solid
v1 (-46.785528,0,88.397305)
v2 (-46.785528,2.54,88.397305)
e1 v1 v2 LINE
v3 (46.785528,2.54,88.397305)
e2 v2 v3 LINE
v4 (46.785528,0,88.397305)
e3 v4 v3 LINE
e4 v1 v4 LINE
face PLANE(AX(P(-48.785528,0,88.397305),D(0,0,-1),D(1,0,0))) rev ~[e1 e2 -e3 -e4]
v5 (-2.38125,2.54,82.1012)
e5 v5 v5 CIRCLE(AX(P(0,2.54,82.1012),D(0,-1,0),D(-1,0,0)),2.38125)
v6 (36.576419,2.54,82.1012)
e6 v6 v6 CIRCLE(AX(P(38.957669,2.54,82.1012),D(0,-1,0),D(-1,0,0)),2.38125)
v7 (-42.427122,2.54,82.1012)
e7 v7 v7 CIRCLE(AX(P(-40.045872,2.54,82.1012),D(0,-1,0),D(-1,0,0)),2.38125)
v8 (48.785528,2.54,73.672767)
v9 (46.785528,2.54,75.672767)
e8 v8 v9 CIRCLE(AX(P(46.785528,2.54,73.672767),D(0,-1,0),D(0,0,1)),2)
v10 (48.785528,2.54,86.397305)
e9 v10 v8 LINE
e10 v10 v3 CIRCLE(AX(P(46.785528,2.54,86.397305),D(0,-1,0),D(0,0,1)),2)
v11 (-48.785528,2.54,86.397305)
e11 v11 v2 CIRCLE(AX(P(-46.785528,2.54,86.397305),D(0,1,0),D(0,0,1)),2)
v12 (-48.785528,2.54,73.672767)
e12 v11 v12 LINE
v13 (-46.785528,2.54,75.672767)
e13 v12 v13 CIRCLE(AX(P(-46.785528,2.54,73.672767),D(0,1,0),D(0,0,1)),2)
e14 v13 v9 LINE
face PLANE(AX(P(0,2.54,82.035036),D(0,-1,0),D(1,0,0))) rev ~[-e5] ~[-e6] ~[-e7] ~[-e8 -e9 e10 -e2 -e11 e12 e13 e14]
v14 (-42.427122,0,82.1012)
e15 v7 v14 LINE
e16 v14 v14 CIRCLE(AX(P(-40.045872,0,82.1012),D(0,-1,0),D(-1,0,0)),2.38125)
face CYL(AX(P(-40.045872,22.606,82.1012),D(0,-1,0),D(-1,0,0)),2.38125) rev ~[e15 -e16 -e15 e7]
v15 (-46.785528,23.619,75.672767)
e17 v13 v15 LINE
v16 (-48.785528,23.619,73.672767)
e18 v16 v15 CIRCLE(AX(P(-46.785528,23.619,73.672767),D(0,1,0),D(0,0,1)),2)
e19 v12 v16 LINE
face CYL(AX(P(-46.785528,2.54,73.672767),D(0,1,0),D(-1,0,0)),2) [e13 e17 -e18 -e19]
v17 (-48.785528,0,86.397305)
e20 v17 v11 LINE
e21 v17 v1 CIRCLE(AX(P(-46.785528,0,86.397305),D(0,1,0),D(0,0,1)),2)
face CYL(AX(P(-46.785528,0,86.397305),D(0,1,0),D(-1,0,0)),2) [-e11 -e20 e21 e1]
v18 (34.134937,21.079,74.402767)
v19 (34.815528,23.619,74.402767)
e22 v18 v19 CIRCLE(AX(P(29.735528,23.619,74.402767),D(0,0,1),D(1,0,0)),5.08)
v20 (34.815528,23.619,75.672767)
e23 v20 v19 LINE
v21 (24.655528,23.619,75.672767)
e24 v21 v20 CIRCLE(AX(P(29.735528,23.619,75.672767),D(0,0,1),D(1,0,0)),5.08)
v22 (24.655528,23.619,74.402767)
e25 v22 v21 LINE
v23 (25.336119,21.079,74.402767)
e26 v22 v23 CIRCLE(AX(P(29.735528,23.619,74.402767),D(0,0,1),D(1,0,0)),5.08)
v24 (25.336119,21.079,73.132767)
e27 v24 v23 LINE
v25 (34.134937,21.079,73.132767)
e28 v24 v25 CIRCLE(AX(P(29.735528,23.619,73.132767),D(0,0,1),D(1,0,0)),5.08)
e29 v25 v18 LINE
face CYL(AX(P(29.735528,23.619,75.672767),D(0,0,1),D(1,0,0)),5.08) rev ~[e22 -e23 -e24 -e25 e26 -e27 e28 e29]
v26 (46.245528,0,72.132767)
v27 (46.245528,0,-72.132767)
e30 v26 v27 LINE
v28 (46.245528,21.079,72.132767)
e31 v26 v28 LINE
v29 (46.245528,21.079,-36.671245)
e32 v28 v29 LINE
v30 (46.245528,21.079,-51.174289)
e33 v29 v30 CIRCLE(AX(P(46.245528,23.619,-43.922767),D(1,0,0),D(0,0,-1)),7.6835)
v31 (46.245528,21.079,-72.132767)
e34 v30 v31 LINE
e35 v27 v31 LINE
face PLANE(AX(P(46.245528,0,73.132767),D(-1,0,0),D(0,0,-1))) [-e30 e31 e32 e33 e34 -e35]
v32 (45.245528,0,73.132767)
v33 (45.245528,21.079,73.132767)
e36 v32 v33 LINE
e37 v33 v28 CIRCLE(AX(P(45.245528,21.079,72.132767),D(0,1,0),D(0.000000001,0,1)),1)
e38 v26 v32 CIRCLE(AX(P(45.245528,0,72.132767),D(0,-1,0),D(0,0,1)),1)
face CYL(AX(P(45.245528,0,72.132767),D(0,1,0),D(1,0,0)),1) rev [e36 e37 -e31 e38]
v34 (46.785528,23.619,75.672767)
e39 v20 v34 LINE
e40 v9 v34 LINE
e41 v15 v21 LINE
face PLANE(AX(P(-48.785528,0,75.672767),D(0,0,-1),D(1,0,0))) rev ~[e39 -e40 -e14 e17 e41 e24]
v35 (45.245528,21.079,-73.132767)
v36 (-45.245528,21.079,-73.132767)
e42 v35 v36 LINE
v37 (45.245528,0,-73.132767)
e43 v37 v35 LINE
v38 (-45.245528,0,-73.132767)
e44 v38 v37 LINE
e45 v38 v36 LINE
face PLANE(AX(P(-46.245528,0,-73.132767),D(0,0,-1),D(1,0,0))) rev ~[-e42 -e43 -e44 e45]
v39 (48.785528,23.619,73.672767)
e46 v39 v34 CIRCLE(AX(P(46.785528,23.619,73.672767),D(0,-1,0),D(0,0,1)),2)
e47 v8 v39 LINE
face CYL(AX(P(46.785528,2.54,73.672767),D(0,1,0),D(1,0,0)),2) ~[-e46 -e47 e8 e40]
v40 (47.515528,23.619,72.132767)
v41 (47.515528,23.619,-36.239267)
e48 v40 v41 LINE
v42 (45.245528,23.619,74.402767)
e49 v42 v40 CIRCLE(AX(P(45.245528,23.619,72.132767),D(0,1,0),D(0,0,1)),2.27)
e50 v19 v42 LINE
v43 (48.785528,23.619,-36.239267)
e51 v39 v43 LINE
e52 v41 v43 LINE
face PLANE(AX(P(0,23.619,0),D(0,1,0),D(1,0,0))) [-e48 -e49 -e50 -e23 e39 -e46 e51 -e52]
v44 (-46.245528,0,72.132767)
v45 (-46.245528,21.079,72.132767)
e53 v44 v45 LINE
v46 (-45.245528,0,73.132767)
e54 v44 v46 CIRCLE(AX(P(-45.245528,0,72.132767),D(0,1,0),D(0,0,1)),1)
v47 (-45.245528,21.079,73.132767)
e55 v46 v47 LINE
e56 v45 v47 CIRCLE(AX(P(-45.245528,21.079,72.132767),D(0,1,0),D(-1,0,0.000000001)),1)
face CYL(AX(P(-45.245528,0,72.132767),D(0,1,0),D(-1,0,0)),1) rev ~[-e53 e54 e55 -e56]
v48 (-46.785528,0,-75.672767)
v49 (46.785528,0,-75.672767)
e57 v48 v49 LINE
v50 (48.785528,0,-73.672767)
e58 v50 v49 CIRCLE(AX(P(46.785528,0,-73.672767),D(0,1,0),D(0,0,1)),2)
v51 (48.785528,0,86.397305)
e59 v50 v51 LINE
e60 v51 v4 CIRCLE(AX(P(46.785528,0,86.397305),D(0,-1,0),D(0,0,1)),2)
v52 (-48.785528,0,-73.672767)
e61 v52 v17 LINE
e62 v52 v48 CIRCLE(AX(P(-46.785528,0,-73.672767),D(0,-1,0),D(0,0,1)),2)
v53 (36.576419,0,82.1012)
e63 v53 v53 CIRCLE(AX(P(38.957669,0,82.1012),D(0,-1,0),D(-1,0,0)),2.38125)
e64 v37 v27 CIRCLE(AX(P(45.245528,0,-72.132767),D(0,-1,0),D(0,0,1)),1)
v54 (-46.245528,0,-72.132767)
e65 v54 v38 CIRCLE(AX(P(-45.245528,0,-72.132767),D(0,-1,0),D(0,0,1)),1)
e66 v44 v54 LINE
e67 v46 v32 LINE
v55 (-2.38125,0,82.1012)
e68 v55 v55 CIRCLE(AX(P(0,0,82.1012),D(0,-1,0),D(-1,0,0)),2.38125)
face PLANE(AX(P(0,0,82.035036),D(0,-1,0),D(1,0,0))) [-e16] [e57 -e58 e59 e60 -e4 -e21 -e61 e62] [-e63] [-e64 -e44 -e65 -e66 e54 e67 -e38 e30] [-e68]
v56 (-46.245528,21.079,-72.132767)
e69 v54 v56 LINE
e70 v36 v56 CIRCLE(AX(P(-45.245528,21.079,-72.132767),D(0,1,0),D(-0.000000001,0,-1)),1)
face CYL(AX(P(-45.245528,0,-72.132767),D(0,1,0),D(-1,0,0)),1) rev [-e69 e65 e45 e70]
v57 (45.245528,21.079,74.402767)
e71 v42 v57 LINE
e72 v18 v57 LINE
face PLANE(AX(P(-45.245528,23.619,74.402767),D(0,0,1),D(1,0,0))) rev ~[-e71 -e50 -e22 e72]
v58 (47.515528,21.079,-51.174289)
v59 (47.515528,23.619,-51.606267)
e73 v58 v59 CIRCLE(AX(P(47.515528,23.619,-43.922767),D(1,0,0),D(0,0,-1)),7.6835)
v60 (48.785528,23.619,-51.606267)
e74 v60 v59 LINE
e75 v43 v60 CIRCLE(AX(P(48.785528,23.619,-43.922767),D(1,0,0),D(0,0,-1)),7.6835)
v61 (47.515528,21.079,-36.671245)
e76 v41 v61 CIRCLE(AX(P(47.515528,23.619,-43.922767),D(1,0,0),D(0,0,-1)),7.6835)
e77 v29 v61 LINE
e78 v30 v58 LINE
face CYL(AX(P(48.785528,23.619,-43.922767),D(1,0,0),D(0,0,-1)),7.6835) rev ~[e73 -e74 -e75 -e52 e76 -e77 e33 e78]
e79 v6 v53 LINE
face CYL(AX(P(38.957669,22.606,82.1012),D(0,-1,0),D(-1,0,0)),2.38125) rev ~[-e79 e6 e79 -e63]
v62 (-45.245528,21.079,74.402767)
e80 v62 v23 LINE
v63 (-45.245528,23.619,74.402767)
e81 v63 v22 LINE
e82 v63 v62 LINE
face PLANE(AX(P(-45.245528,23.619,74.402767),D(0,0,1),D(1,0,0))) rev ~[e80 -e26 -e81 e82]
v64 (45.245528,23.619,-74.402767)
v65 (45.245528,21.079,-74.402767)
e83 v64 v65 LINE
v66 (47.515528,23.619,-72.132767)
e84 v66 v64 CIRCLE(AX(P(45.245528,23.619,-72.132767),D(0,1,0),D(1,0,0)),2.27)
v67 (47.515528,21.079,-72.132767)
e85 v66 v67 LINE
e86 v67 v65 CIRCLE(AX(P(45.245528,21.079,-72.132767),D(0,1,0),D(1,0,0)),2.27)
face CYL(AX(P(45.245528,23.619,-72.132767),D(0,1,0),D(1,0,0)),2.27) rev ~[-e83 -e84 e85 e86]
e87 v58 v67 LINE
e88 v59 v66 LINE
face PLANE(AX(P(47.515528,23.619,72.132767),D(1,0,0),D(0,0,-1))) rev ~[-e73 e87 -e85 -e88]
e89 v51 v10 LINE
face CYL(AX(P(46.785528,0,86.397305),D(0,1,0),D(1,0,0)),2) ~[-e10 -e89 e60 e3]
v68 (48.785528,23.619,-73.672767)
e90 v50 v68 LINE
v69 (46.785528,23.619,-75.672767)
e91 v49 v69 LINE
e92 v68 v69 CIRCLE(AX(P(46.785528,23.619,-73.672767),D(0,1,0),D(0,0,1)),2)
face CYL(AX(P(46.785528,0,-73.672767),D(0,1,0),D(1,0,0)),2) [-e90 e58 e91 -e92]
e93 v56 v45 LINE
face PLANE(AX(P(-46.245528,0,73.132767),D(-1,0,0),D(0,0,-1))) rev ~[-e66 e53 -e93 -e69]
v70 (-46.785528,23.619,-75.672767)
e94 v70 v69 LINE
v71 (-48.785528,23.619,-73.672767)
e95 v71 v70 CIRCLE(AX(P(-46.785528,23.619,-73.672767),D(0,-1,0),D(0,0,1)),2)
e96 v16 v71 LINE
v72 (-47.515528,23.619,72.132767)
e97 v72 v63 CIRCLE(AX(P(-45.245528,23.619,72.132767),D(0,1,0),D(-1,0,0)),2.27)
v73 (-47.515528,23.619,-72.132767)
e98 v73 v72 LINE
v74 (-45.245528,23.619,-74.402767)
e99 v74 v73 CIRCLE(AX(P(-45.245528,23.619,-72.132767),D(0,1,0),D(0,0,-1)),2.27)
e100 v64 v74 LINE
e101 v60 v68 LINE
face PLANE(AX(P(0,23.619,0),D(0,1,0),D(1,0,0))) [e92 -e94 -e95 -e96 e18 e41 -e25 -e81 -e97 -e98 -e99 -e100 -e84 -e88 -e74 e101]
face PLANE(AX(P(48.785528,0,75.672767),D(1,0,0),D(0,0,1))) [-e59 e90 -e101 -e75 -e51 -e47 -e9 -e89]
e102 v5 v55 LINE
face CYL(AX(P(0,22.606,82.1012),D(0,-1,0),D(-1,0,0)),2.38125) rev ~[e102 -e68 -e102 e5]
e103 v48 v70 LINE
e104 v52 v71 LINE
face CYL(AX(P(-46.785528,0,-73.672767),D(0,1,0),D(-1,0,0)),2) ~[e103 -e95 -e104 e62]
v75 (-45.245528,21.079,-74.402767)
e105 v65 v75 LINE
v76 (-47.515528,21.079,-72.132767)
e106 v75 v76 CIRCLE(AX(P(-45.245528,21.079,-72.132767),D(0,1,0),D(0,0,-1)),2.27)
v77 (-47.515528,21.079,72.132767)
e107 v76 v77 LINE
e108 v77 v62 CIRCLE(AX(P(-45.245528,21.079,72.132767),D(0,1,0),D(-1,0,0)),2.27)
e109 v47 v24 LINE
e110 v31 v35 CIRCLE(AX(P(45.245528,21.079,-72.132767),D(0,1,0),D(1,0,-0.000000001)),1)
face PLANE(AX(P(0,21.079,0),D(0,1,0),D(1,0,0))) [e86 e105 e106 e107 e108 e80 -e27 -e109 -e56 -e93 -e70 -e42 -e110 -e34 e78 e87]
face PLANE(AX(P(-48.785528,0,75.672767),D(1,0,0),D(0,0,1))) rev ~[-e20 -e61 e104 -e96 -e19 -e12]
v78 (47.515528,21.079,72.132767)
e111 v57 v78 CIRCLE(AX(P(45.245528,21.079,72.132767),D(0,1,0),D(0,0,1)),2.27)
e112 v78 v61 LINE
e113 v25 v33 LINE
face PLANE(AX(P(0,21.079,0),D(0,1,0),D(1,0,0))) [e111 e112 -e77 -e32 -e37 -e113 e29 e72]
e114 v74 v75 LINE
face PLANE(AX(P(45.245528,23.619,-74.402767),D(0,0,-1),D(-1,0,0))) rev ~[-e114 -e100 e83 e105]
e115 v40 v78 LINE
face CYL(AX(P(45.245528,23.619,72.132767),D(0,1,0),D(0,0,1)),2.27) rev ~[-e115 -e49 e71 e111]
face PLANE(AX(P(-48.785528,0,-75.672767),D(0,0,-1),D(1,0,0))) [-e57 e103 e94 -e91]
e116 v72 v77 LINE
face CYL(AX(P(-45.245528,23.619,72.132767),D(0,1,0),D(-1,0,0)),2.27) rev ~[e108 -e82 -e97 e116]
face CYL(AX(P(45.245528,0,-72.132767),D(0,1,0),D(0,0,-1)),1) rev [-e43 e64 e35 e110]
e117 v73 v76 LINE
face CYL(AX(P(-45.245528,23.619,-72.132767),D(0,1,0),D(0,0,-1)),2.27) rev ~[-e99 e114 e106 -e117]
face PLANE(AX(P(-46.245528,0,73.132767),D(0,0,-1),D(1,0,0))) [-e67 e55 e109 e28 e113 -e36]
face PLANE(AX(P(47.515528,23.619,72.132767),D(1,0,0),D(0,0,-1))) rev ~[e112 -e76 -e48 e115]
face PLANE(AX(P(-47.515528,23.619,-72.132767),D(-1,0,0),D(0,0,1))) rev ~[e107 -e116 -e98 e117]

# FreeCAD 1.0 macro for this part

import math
import FreeCAD as App
import Part
import Sketcher

V = App.Vector
Q = App.Units.Quantity


def edges_at(feature, points):
    """Names of the edges that pass closest to the given points."""
    edges = feature.Shape.Edges
    near = lambda p: min(range(len(edges)), key=lambda i: edges[i].distToShape(Part.Vertex(*p))[0])
    return sorted({f"Edge{near(p) + 1}" for p in points})


def add_polygon(sketch, points):
    """Adds a closed chain of lines whose ends are joined by coincident constraints."""
    first, n = sketch.GeometryCount, len(points)
    for a, b in zip(points, points[1:] + points[:1]):
        sketch.addGeometry(Part.LineSegment(App.Vector(*a, 0), App.Vector(*b, 0)), False)
    for i in range(n):
        sketch.addConstraint(Sketcher.Constraint("Coincident", first + i, 2, first + (i + 1) % n, 1))

doc = App.newDocument("Part")
body = doc.addObject("PartDesign::Body", "Body")

# Sketch on XZ plane
sketch1 = body.newObject("Sketcher::SketchObject", "Sketch")
sketch1.AttachmentSupport = (doc.getObject("XZ_Plane"), [""])
sketch1.MapMode = "FlatFace"
add_polygon(sketch1, [(-49, -76), (-49, 76), (49, 76), (49, -76)])  # lines 0-3
add_polygon(sketch1, [(46, 73), (-46, 73), (-46, -73), (46, -73)])  # lines 4-7
sketch1.addConstraint(Sketcher.Constraint("Vertical", 0))
sketch1.addConstraint(Sketcher.Constraint("Horizontal", 1))
sketch1.addConstraint(Sketcher.Constraint("Vertical", 2))
sketch1.addConstraint(Sketcher.Constraint("Horizontal", 3))
sketch1.addConstraint(Sketcher.Constraint("Horizontal", 4))
sketch1.addConstraint(Sketcher.Constraint("Vertical", 5))
sketch1.addConstraint(Sketcher.Constraint("Horizontal", 6))
sketch1.addConstraint(Sketcher.Constraint("Vertical", 7))
sketch1.addConstraint(Sketcher.Constraint("Symmetric", 0, 2, 2, 2, -1, 1))
sketch1.addConstraint(Sketcher.Constraint("Symmetric", 4, 2, 6, 2, -1, 1))
sketch1.addConstraint(Sketcher.Constraint("DistanceX", 0, 2, 4, 2, Q("0.1 in")))
sketch1.addConstraint(Sketcher.Constraint("DistanceY", 4, 2, 0, 2, Q("0.1 in")))
sketch1.addConstraint(Sketcher.Constraint("DistanceX", 1, 1, 1, 2, Q("97.571056 mm")))
sketch1.addConstraint(Sketcher.Constraint("DistanceY", 0, 1, 0, 2, Q("151.345534 mm")))
pad1 = body.newObject("PartDesign::Pad", "Pad")
pad1.Profile = sketch1
pad1.Length = 23.619
pad1.Reversed = True

# Sketch on XZ plane
sketch2 = body.newObject("Sketcher::SketchObject", "Sketch001")
sketch2.AttachmentSupport = (doc.getObject("XZ_Plane"), [""])
sketch2.MapMode = "FlatFace"
add_polygon(sketch2, [(-49, 88), (-49, 76), (49, 76), (49, 88)])  # lines 0-3
sketch2.addConstraint(Sketcher.Constraint("Vertical", 0))
sketch2.addConstraint(Sketcher.Constraint("Horizontal", 1))
sketch2.addConstraint(Sketcher.Constraint("Vertical", 2))
sketch2.addConstraint(Sketcher.Constraint("Horizontal", 3))
sketch2.addConstraint(Sketcher.Constraint("DistanceY", 0, 2, 0, 1, Q("12.724538 mm")))
sketch2.addConstraint(Sketcher.Constraint("DistanceX", 1, 1, 1, 2, Q("97.571056 mm")))
sketch2.addConstraint(Sketcher.Constraint("DistanceX", 0, 2, -1, 1, Q("48.785528 mm")))
sketch2.addConstraint(Sketcher.Constraint("DistanceY", -1, 1, 0, 2, Q("75.672767 mm")))
pad2 = body.newObject("PartDesign::Pad", "Pad001")
pad2.Profile = sketch2
pad2.Length = Q("0.1 in")
pad2.Reversed = True
doc.recompute()

fillet = body.newObject("PartDesign::Fillet", "Fillet")
fillet.Base = (pad2, edges_at(pad2, [
    (-48.786, 1.27, 88.397),
    (48.786, 1.27, 88.397),
    (48.786, 13.08, 75.673),
    (-48.786, 13.08, 75.673),
    (-48.786, 11.81, -75.673),
    (48.786, 11.81, -75.673),
]))
fillet.Radius = 2
doc.recompute()

fillet2 = body.newObject("PartDesign::Fillet", "Fillet001")
fillet2.Base = (fillet, edges_at(fillet, [
    (46.246, 11.81, 73.133),
    (46.246, 11.81, -73.133),
    (-46.246, 11.81, -73.133),
    (-46.246, 11.81, 73.133),
]))
fillet2.Radius = 1

# Sketch on XZ plane
sketch3 = body.newObject("Sketcher::SketchObject", "Sketch002")
sketch3.AttachmentSupport = (doc.getObject("XZ_Plane"), [""])
sketch3.MapMode = "FlatFace"
sketch3.AttachmentOffset = App.Placement(V(0, 0, -0.1 * 25.4), App.Rotation())
sketch3.addGeometry(Part.Circle(V(-40, 82.1, 0), V(0, 0, 1), 2.4), False)
sketch3.addGeometry(Part.Circle(V(39, 82.1, 0), V(0, 0, 1), 2.4), False)
sketch3.addGeometry(Part.Circle(V(0, 82.1, 0), V(0, 0, 1), 2.4), False)
sketch3.addConstraint(Sketcher.Constraint("Equal", 0, 1))
sketch3.addConstraint(Sketcher.Constraint("Equal", 1, 2))
sketch3.addConstraint(Sketcher.Constraint("PointOnObject", 2, 3, -2))
sketch3.addConstraint(Sketcher.Constraint("Horizontal", 0, 3, 1, 3))
sketch3.addConstraint(Sketcher.Constraint("Horizontal", 1, 3, 2, 3))
sketch3.addConstraint(Sketcher.Constraint("Diameter", 0, Q("0.1875 in")))
sketch3.addConstraint(Sketcher.Constraint("DistanceY", -1, 1, 0, 3, Q("82.1012 mm")))
sketch3.addConstraint(Sketcher.Constraint("DistanceX", 0, 3, -1, 1, Q("40.045872 mm")))
sketch3.addConstraint(Sketcher.Constraint("DistanceX", -1, 1, 1, 3, Q("38.957669 mm")))
doc.recompute()
hole = body.newObject("PartDesign::Hole", "Hole")
hole.Profile = sketch3
hole.ThreadType = "None"
hole.Diameter = Q("0.1875 in")
hole.DepthType = "Dimension"
hole.Depth = Q("0.79 in")
hole.DrillPoint = "Angled"
hole.DrillPointAngle = 118
hole.Reversed = True

# Sketch on XZ plane
sketch4 = body.newObject("Sketcher::SketchObject", "Sketch003")
sketch4.AttachmentSupport = (doc.getObject("XZ_Plane"), [""])
sketch4.MapMode = "FlatFace"
sketch4.AttachmentOffset = App.Placement(V(0, 0, -23.619), App.Rotation())
sketch4.addGeometry(Part.LineSegment(V(-45.2, 74.4, 0), V(45.2, 74.4, 0)), False)
sketch4.addGeometry(Part.ArcOfCircle(Part.Circle(V(45.2, 72.1, 0), V(0, 0, 1), 2.3), math.radians(0), math.radians(90)), False)
sketch4.addGeometry(Part.LineSegment(V(47.5, 72.1, 0), V(47.5, -72.1, 0)), False)
sketch4.addGeometry(Part.ArcOfCircle(Part.Circle(V(45.2, -72.1, 0), V(0, 0, 1), 2.3), math.radians(-90), math.radians(0)), False)
sketch4.addGeometry(Part.LineSegment(V(45.2, -74.4, 0), V(-45.2, -74.4, 0)), False)
sketch4.addGeometry(Part.ArcOfCircle(Part.Circle(V(-45.2, -72.1, 0), V(0, 0, 1), 2.3), math.radians(-180), math.radians(-90)), False)
sketch4.addGeometry(Part.LineSegment(V(-47.5, -72.1, 0), V(-47.5, 72.1, 0)), False)
sketch4.addGeometry(Part.ArcOfCircle(Part.Circle(V(-45.2, 72.1, 0), V(0, 0, 1), 2.3), math.radians(90), math.radians(180)), False)
sketch4.addGeometry(Part.LineSegment(V(-46.2, 72.1, 0), V(-46.2, -72.1, 0)), False)
sketch4.addGeometry(Part.ArcOfCircle(Part.Circle(V(-45.2, -72.1, 0), V(0, 0, 1), 1), math.radians(-180), math.radians(-90)), False)
sketch4.addGeometry(Part.LineSegment(V(-45.2, -73.1, 0), V(45.2, -73.1, 0)), False)
sketch4.addGeometry(Part.ArcOfCircle(Part.Circle(V(45.2, -72.1, 0), V(0, 0, 1), 1), math.radians(-90), math.radians(0)), False)
sketch4.addGeometry(Part.LineSegment(V(46.2, -72.1, 0), V(46.2, 72.1, 0)), False)
sketch4.addGeometry(Part.ArcOfCircle(Part.Circle(V(45.2, 72.1, 0), V(0, 0, 1), 1), math.radians(0), math.radians(90)), False)
sketch4.addGeometry(Part.LineSegment(V(45.2, 73.1, 0), V(-45.2, 73.1, 0)), False)
sketch4.addGeometry(Part.ArcOfCircle(Part.Circle(V(-45.2, 72.1, 0), V(0, 0, 1), 1), math.radians(90), math.radians(180)), False)
sketch4.addConstraint(Sketcher.Constraint("Tangent", 0, 2, 1, 2))
sketch4.addConstraint(Sketcher.Constraint("Tangent", 1, 1, 2, 1))
sketch4.addConstraint(Sketcher.Constraint("Tangent", 2, 2, 3, 2))
sketch4.addConstraint(Sketcher.Constraint("Tangent", 3, 1, 4, 1))
sketch4.addConstraint(Sketcher.Constraint("Tangent", 4, 2, 5, 2))
sketch4.addConstraint(Sketcher.Constraint("Tangent", 5, 1, 6, 1))
sketch4.addConstraint(Sketcher.Constraint("Tangent", 6, 2, 7, 2))
sketch4.addConstraint(Sketcher.Constraint("Tangent", 7, 1, 0, 1))
sketch4.addConstraint(Sketcher.Constraint("Tangent", 8, 2, 9, 1))
sketch4.addConstraint(Sketcher.Constraint("Tangent", 9, 2, 10, 1))
sketch4.addConstraint(Sketcher.Constraint("Tangent", 10, 2, 11, 1))
sketch4.addConstraint(Sketcher.Constraint("Tangent", 11, 2, 12, 1))
sketch4.addConstraint(Sketcher.Constraint("Tangent", 12, 2, 13, 1))
sketch4.addConstraint(Sketcher.Constraint("Tangent", 13, 2, 14, 1))
sketch4.addConstraint(Sketcher.Constraint("Tangent", 14, 2, 15, 1))
sketch4.addConstraint(Sketcher.Constraint("Tangent", 15, 2, 8, 1))
sketch4.addConstraint(Sketcher.Constraint("Horizontal", 0))
sketch4.addConstraint(Sketcher.Constraint("Vertical", 2))
sketch4.addConstraint(Sketcher.Constraint("Horizontal", 4))
sketch4.addConstraint(Sketcher.Constraint("Vertical", 6))
sketch4.addConstraint(Sketcher.Constraint("Vertical", 8))
sketch4.addConstraint(Sketcher.Constraint("Horizontal", 10))
sketch4.addConstraint(Sketcher.Constraint("Vertical", 12))
sketch4.addConstraint(Sketcher.Constraint("Horizontal", 14))
sketch4.addConstraint(Sketcher.Constraint("Coincident", 9, 3, 5, 3))
sketch4.addConstraint(Sketcher.Constraint("Coincident", 11, 3, 3, 3))
sketch4.addConstraint(Sketcher.Constraint("Coincident", 13, 3, 1, 3))
sketch4.addConstraint(Sketcher.Constraint("Equal", 1, 3))
sketch4.addConstraint(Sketcher.Constraint("Equal", 3, 5))
sketch4.addConstraint(Sketcher.Constraint("Equal", 5, 7))
sketch4.addConstraint(Sketcher.Constraint("Equal", 13, 15))
sketch4.addConstraint(Sketcher.Constraint("Symmetric", 1, 3, 5, 3, -1, 1))
sketch4.addConstraint(Sketcher.Constraint("Radius", 1, Q("2.27 mm")))
sketch4.addConstraint(Sketcher.Constraint("Radius", 9, Q("1 mm")))
sketch4.addConstraint(Sketcher.Constraint("DistanceX", 0, 1, 0, 2, Q("90.491056 mm")))
sketch4.addConstraint(Sketcher.Constraint("DistanceY", 2, 2, 2, 1, Q("144.265534 mm")))
pocket1 = body.newObject("PartDesign::Pocket", "Pocket")
pocket1.Profile = sketch4
pocket1.Length = Q("0.1 in")
pocket1.Reversed = True

# Sketch on YZ plane
sketch5 = body.newObject("Sketcher::SketchObject", "Sketch004")
sketch5.AttachmentSupport = (doc.getObject("YZ_Plane"), [""])
sketch5.MapMode = "FlatFace"
sketch5.AttachmentOffset = App.Placement(V(0, 0, 48.785528), App.Rotation())
sketch5.addGeometry(Part.Circle(V(24, -44, 0), V(0, 0, 1), 8), False)
sketch5.addConstraint(Sketcher.Constraint("Diameter", 0, Q("0.605 in")))
sketch5.addConstraint(Sketcher.Constraint("DistanceX", -1, 1, 0, 3, Q("23.619 mm")))
sketch5.addConstraint(Sketcher.Constraint("DistanceY", 0, 3, -1, 1, Q("43.922767 mm")))
pocket2 = body.newObject("PartDesign::Pocket", "Pocket001")
pocket2.Profile = sketch5
pocket2.Length = Q("0.1 in")

# Sketch on XY plane
sketch6 = body.newObject("Sketcher::SketchObject", "Sketch005")
sketch6.AttachmentSupport = (doc.getObject("XY_Plane"), [""])
sketch6.MapMode = "FlatFace"
sketch6.AttachmentOffset = App.Placement(V(0, 0, 75.672767), App.Rotation())
sketch6.addGeometry(Part.Circle(V(30, 24, 0), V(0, 0, 1), 5), False)
sketch6.addConstraint(Sketcher.Constraint("Diameter", 0, Q("0.4 in")))
sketch6.addConstraint(Sketcher.Constraint("DistanceY", -1, 1, 0, 3, Q("23.619 mm")))
sketch6.addConstraint(Sketcher.Constraint("DistanceX", -1, 1, 0, 3, Q("29.735528 mm")))
pocket3 = body.newObject("PartDesign::Pocket", "Pocket002")
pocket3.Profile = sketch6
pocket3.Length = Q("0.1 in")

doc.recompute()
